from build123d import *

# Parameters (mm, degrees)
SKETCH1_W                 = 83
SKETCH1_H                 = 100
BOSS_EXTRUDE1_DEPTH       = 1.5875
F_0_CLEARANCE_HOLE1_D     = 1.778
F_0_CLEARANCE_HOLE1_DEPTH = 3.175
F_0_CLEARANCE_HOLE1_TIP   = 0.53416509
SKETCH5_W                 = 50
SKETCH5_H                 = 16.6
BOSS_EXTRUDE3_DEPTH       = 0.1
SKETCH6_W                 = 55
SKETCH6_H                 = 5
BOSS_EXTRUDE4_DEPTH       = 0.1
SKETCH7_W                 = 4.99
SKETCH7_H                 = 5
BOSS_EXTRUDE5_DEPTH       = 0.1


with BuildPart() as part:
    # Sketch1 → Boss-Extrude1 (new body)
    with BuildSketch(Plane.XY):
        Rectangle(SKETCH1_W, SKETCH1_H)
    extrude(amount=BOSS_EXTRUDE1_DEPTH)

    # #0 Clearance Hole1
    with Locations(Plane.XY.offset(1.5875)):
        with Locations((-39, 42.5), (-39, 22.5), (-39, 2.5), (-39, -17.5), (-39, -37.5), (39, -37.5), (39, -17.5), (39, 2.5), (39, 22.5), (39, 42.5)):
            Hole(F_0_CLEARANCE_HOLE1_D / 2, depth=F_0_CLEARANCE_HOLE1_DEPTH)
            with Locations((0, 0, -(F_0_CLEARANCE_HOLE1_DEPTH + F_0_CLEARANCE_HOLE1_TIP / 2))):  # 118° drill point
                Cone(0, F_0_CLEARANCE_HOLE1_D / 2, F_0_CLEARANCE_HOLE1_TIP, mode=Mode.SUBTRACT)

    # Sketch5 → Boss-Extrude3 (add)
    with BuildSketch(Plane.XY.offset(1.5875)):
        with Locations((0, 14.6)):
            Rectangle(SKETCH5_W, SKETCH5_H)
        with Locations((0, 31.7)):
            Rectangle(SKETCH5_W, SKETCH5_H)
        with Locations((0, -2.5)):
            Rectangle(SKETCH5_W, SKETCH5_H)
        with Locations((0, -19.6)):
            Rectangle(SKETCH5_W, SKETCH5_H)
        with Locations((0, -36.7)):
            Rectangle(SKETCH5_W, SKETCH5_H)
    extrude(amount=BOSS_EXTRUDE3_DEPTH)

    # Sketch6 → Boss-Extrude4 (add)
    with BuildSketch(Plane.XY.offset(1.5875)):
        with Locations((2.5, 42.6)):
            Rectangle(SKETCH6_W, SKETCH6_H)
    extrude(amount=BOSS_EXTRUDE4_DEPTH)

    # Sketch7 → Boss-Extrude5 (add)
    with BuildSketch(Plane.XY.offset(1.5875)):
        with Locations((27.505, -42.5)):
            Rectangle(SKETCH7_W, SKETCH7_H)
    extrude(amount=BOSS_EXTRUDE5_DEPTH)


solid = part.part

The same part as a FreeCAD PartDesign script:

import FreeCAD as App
import Part
import Sketcher
from FreeCAD import Vector


def add_polygon(sketch, points):
    """Adds a closed chain of lines whose ends are joined by coincident constraints."""
    first, n = sketch.GeometryCount, len(points)
    for a, b in zip(points, points[1:] + points[:1]):
        sketch.addGeometry(Part.LineSegment(App.Vector(*a, 0), App.Vector(*b, 0)), False)
    for i in range(n):
        sketch.addConstraint(Sketcher.Constraint("Coincident", first + i, 2, first + (i + 1) % n, 1))

doc = App.newDocument("Part")
params = doc.addObject("Spreadsheet::Sheet", "Params")
for row, (alias, value) in enumerate([
    ("sketch1_width", "83 mm"),
    ("sketch1_height", "100 mm"),
    ("pad1_length", "1.5875 mm"),
    ("hole_diameter", "1.778 mm"),
    ("hole_depth", "3.175 mm"),
    ("sketch3_width", "50 mm"),
    ("sketch3_height", "16.6 mm"),
    ("pad2_length", "0.1 mm"),
    ("sketch4_width", "55 mm"),
    ("sketch4_height", "5 mm"),
    ("pad3_length", "0.1 mm"),
    ("sketch5_height", "5 mm"),
    ("sketch5_width", "4.99 mm"),
    ("pad4_length", "0.1 mm"),
], start=1):
    params.set(f"A{row}", alias)
    params.set(f"B{row}", "=" + value)
    params.setAlias(f"B{row}", alias)

body = doc.addObject("PartDesign::Body", "Body")

sketch1 = doc.addObject("Sketcher::SketchObject", "Sketch")
body.addObject(sketch1)
sketch1.AttachmentSupport = (doc.XY_Plane, [""])
sketch1.MapMode = "FlatFace"
add_polygon(sketch1, [(-42, 50), (-42, -50), (42, -50), (42, 50)])
sketch1.addConstraint([
    Sketcher.Constraint("Vertical", 0),
    Sketcher.Constraint("Horizontal", 1),
    Sketcher.Constraint("Vertical", 2),
    Sketcher.Constraint("Horizontal", 3),
    Sketcher.Constraint("Symmetric", 0, 2, 2, 2, -1, 1),
    Sketcher.Constraint("DistanceX", 1, 1, 1, 2, 83.0),
    Sketcher.Constraint("DistanceY", 0, 2, 0, 1, 100.0),
])
sketch1.setExpression("Constraints[9]", "Params.sketch1_width")
sketch1.setExpression("Constraints[10]", "Params.sketch1_height")
pad1 = doc.addObject("PartDesign::Pad", "Pad")
body.addObject(pad1)
pad1.Profile = sketch1
pad1.setExpression("Length", "Params.pad1_length")

sketch2 = doc.addObject("Sketcher::SketchObject", "Sketch001")
body.addObject(sketch2)
sketch2.AttachmentSupport = (doc.XY_Plane, [""])
sketch2.MapMode = "FlatFace"
sketch2.AttachmentOffset = App.Placement(Vector(0, 0, 1.5875), App.Rotation())
sketch2.addGeometry([
    Part.Circle(Vector(-39, 42.5, 0), Vector(0, 0, 1), 0.9),
    Part.Circle(Vector(-39, 22.5, 0), Vector(0, 0, 1), 0.9),
    Part.Circle(Vector(-39, 2.5, 0), Vector(0, 0, 1), 0.9),
    Part.Circle(Vector(-39, -17.5, 0), Vector(0, 0, 1), 0.9),
    Part.Circle(Vector(-39, -37.5, 0), Vector(0, 0, 1), 0.9),
    Part.Circle(Vector(39, -37.5, 0), Vector(0, 0, 1), 0.9),
    Part.Circle(Vector(39, -17.5, 0), Vector(0, 0, 1), 0.9),
    Part.Circle(Vector(39, 2.5, 0), Vector(0, 0, 1), 0.9),
    Part.Circle(Vector(39, 22.5, 0), Vector(0, 0, 1), 0.9),
    Part.Circle(Vector(39, 42.5, 0), Vector(0, 0, 1), 0.9),
], False)
sketch2.addConstraint([
    Sketcher.Constraint("Equal", 0, 1),
    Sketcher.Constraint("Equal", 1, 2),
    Sketcher.Constraint("Equal", 2, 3),
    Sketcher.Constraint("Equal", 3, 4),
    Sketcher.Constraint("Equal", 4, 5),
    Sketcher.Constraint("Equal", 5, 6),
    Sketcher.Constraint("Equal", 6, 7),
    Sketcher.Constraint("Equal", 7, 8),
    Sketcher.Constraint("Equal", 8, 9),
    Sketcher.Constraint("Symmetric", 4, 3, 5, 3, -2),
    Sketcher.Constraint("Symmetric", 3, 3, 6, 3, -2),
    Sketcher.Constraint("Symmetric", 2, 3, 7, 3, -2),
    Sketcher.Constraint("Symmetric", 1, 3, 8, 3, -2),
    Sketcher.Constraint("Symmetric", 0, 3, 9, 3, -2),
    Sketcher.Constraint("Vertical", 0, 3, 1, 3),
    Sketcher.Constraint("Vertical", 1, 3, 2, 3),
    Sketcher.Constraint("Vertical", 2, 3, 3, 3),
    Sketcher.Constraint("Vertical", 3, 3, 4, 3),
    Sketcher.Constraint("Diameter", 0, 1.778),
    Sketcher.Constraint("DistanceX", 0, 3, -1, 1, 39.0),
    Sketcher.Constraint("DistanceY", 1, 3, 0, 3, 20.0),
    Sketcher.Constraint("DistanceY", 2, 3, 1, 3, 20.0),
    Sketcher.Constraint("DistanceY", 3, 3, 2, 3, 20.0),
    Sketcher.Constraint("DistanceY", 4, 3, 3, 3, 20.0),
    Sketcher.Constraint("DistanceY", -1, 1, 0, 3, 42.5),
])
doc.recompute()
hole = doc.addObject("PartDesign::Hole", "Hole")
body.addObject(hole)
hole.Profile = sketch2
hole.ThreadType = "None"
hole.setExpression("Diameter", "Params.hole_diameter")
hole.DepthType = "Dimension"
hole.setExpression("Depth", "Params.hole_depth")
hole.DrillPoint = "Angled"
hole.DrillPointAngle = 118

sketch3 = doc.addObject("Sketcher::SketchObject", "Sketch002")
body.addObject(sketch3)
sketch3.AttachmentSupport = (doc.XY_Plane, [""])
sketch3.MapMode = "FlatFace"
sketch3.AttachmentOffset = App.Placement(Vector(0, 0, 1.5875), App.Rotation())
add_polygon(sketch3, [(-25, 23), (-25, 6), (25, 6), (25, 23)])
add_polygon(sketch3, [(-25, 40), (-25, 23), (25, 23), (25, 40)])
add_polygon(sketch3, [(-25, 6), (-25, -11), (25, -11), (25, 6)])
add_polygon(sketch3, [(-25, -11), (-25, -28), (25, -28), (25, -11)])
add_polygon(sketch3, [(-25, -28), (-25, -45), (25, -45), (25, -28)])
sketch3.addConstraint([
    Sketcher.Constraint("Vertical", 0),
    Sketcher.Constraint("Horizontal", 1),
    Sketcher.Constraint("Vertical", 2),
    Sketcher.Constraint("Horizontal", 3),
    Sketcher.Constraint("Vertical", 4),
    Sketcher.Constraint("Horizontal", 5),
    Sketcher.Constraint("Vertical", 6),
    Sketcher.Constraint("Horizontal", 7),
    Sketcher.Constraint("Vertical", 8),
    Sketcher.Constraint("Horizontal", 9),
    Sketcher.Constraint("Vertical", 10),
    Sketcher.Constraint("Horizontal", 11),
    Sketcher.Constraint("Vertical", 12),
    Sketcher.Constraint("Horizontal", 13),
    Sketcher.Constraint("Vertical", 14),
    Sketcher.Constraint("Horizontal", 15),
    Sketcher.Constraint("Vertical", 16),
    Sketcher.Constraint("Horizontal", 17),
    Sketcher.Constraint("Vertical", 18),
    Sketcher.Constraint("Horizontal", 19),
    Sketcher.Constraint("Vertical", 3, 2, 4, 2),
    Sketcher.Constraint("Vertical", 2, 2, 5, 2),
    Sketcher.Constraint("Vertical", 7, 2, 8, 2),
    Sketcher.Constraint("Vertical", 6, 2, 9, 2),
    Sketcher.Constraint("Vertical", 11, 2, 12, 2),
    Sketcher.Constraint("Vertical", 10, 2, 13, 2),
    Sketcher.Constraint("Vertical", 15, 2, 16, 2),
    Sketcher.Constraint("Vertical", 14, 2, 17, 2),
    Sketcher.Constraint("Equal", 2, 4),
    Sketcher.Constraint("Equal", 6, 8),
    Sketcher.Constraint("Equal", 10, 12),
    Sketcher.Constraint("Equal", 14, 16),
    Sketcher.Constraint("DistanceX", 1, 1, 1, 2, 50.0),
    Sketcher.Constraint("DistanceY", 0, 2, 0, 1, 16.6),
    Sketcher.Constraint("DistanceX", 0, 2, -1, 1, 25.0),
    Sketcher.Constraint("DistanceY", -1, 1, 6, 2, 40.0),
    Sketcher.Constraint("DistanceY", 16, 2, -1, 1, 45.0),
    Sketcher.Constraint("DistanceY", -1, 1, 0, 2, 6.3),
    Sketcher.Constraint("DistanceY", 8, 2, -1, 1, 10.8),
    Sketcher.Constraint("DistanceY", 12, 2, -1, 1, 27.9),
])
sketch3.setExpression("Constraints[52]", "Params.sketch3_width")
sketch3.setExpression("Constraints[53]", "Params.sketch3_height")
pad2 = doc.addObject("PartDesign::Pad", "Pad001")
body.addObject(pad2)
pad2.Profile = sketch3
pad2.setExpression("Length", "Params.pad2_length")

sketch4 = doc.addObject("Sketcher::SketchObject", "Sketch003")
body.addObject(sketch4)
sketch4.AttachmentSupport = (doc.XY_Plane, [""])
sketch4.MapMode = "FlatFace"
sketch4.AttachmentOffset = App.Placement(Vector(0, 0, 1.5875), App.Rotation())
add_polygon(sketch4, [(-25, 45), (-25, 40), (30, 40), (30, 45)])
sketch4.addConstraint([
    Sketcher.Constraint("Vertical", 0),
    Sketcher.Constraint("Horizontal", 1),
    Sketcher.Constraint("Vertical", 2),
    Sketcher.Constraint("Horizontal", 3),
    Sketcher.Constraint("DistanceX", 1, 1, 1, 2, 55.0),
    Sketcher.Constraint("DistanceY", 0, 2, 0, 1, 5.0),
    Sketcher.Constraint("DistanceX", 0, 2, -1, 1, 25.0),
    Sketcher.Constraint("DistanceY", -1, 1, 0, 2, 40.1),
])
sketch4.setExpression("Constraints[8]", "Params.sketch4_width")
sketch4.setExpression("Constraints[9]", "Params.sketch4_height")
pad3 = doc.addObject("PartDesign::Pad", "Pad002")
body.addObject(pad3)
pad3.Profile = sketch4
pad3.setExpression("Length", "Params.pad3_length")

sketch5 = doc.addObject("Sketcher::SketchObject", "Sketch004")
body.addObject(sketch5)
sketch5.AttachmentSupport = (doc.XY_Plane, [""])
sketch5.MapMode = "FlatFace"
sketch5.AttachmentOffset = App.Placement(Vector(0, 0, 1.5875), App.Rotation())
add_polygon(sketch5, [(25, -40), (25, -45), (30, -45), (30, -40)])
sketch5.addConstraint([
    Sketcher.Constraint("Vertical", 0),
    Sketcher.Constraint("Horizontal", 1),
    Sketcher.Constraint("Vertical", 2),
    Sketcher.Constraint("Horizontal", 3),
    Sketcher.Constraint("DistanceY", 0, 2, 0, 1, 5.0),
    Sketcher.Constraint("DistanceY", 0, 2, -1, 1, 45.0),
    Sketcher.Constraint("DistanceX", -1, 1, 1, 2, 30.0),
    Sketcher.Constraint("DistanceX", 1, 1, 1, 2, 4.99),
])
sketch5.setExpression("Constraints[8]", "Params.sketch5_height")
sketch5.setExpression("Constraints[11]", "Params.sketch5_width")
pad4 = doc.addObject("PartDesign::Pad", "Pad003")
body.addObject(pad4)
pad4.Profile = sketch5
pad4.setExpression("Length", "Params.pad4_length")

doc.recompute()
